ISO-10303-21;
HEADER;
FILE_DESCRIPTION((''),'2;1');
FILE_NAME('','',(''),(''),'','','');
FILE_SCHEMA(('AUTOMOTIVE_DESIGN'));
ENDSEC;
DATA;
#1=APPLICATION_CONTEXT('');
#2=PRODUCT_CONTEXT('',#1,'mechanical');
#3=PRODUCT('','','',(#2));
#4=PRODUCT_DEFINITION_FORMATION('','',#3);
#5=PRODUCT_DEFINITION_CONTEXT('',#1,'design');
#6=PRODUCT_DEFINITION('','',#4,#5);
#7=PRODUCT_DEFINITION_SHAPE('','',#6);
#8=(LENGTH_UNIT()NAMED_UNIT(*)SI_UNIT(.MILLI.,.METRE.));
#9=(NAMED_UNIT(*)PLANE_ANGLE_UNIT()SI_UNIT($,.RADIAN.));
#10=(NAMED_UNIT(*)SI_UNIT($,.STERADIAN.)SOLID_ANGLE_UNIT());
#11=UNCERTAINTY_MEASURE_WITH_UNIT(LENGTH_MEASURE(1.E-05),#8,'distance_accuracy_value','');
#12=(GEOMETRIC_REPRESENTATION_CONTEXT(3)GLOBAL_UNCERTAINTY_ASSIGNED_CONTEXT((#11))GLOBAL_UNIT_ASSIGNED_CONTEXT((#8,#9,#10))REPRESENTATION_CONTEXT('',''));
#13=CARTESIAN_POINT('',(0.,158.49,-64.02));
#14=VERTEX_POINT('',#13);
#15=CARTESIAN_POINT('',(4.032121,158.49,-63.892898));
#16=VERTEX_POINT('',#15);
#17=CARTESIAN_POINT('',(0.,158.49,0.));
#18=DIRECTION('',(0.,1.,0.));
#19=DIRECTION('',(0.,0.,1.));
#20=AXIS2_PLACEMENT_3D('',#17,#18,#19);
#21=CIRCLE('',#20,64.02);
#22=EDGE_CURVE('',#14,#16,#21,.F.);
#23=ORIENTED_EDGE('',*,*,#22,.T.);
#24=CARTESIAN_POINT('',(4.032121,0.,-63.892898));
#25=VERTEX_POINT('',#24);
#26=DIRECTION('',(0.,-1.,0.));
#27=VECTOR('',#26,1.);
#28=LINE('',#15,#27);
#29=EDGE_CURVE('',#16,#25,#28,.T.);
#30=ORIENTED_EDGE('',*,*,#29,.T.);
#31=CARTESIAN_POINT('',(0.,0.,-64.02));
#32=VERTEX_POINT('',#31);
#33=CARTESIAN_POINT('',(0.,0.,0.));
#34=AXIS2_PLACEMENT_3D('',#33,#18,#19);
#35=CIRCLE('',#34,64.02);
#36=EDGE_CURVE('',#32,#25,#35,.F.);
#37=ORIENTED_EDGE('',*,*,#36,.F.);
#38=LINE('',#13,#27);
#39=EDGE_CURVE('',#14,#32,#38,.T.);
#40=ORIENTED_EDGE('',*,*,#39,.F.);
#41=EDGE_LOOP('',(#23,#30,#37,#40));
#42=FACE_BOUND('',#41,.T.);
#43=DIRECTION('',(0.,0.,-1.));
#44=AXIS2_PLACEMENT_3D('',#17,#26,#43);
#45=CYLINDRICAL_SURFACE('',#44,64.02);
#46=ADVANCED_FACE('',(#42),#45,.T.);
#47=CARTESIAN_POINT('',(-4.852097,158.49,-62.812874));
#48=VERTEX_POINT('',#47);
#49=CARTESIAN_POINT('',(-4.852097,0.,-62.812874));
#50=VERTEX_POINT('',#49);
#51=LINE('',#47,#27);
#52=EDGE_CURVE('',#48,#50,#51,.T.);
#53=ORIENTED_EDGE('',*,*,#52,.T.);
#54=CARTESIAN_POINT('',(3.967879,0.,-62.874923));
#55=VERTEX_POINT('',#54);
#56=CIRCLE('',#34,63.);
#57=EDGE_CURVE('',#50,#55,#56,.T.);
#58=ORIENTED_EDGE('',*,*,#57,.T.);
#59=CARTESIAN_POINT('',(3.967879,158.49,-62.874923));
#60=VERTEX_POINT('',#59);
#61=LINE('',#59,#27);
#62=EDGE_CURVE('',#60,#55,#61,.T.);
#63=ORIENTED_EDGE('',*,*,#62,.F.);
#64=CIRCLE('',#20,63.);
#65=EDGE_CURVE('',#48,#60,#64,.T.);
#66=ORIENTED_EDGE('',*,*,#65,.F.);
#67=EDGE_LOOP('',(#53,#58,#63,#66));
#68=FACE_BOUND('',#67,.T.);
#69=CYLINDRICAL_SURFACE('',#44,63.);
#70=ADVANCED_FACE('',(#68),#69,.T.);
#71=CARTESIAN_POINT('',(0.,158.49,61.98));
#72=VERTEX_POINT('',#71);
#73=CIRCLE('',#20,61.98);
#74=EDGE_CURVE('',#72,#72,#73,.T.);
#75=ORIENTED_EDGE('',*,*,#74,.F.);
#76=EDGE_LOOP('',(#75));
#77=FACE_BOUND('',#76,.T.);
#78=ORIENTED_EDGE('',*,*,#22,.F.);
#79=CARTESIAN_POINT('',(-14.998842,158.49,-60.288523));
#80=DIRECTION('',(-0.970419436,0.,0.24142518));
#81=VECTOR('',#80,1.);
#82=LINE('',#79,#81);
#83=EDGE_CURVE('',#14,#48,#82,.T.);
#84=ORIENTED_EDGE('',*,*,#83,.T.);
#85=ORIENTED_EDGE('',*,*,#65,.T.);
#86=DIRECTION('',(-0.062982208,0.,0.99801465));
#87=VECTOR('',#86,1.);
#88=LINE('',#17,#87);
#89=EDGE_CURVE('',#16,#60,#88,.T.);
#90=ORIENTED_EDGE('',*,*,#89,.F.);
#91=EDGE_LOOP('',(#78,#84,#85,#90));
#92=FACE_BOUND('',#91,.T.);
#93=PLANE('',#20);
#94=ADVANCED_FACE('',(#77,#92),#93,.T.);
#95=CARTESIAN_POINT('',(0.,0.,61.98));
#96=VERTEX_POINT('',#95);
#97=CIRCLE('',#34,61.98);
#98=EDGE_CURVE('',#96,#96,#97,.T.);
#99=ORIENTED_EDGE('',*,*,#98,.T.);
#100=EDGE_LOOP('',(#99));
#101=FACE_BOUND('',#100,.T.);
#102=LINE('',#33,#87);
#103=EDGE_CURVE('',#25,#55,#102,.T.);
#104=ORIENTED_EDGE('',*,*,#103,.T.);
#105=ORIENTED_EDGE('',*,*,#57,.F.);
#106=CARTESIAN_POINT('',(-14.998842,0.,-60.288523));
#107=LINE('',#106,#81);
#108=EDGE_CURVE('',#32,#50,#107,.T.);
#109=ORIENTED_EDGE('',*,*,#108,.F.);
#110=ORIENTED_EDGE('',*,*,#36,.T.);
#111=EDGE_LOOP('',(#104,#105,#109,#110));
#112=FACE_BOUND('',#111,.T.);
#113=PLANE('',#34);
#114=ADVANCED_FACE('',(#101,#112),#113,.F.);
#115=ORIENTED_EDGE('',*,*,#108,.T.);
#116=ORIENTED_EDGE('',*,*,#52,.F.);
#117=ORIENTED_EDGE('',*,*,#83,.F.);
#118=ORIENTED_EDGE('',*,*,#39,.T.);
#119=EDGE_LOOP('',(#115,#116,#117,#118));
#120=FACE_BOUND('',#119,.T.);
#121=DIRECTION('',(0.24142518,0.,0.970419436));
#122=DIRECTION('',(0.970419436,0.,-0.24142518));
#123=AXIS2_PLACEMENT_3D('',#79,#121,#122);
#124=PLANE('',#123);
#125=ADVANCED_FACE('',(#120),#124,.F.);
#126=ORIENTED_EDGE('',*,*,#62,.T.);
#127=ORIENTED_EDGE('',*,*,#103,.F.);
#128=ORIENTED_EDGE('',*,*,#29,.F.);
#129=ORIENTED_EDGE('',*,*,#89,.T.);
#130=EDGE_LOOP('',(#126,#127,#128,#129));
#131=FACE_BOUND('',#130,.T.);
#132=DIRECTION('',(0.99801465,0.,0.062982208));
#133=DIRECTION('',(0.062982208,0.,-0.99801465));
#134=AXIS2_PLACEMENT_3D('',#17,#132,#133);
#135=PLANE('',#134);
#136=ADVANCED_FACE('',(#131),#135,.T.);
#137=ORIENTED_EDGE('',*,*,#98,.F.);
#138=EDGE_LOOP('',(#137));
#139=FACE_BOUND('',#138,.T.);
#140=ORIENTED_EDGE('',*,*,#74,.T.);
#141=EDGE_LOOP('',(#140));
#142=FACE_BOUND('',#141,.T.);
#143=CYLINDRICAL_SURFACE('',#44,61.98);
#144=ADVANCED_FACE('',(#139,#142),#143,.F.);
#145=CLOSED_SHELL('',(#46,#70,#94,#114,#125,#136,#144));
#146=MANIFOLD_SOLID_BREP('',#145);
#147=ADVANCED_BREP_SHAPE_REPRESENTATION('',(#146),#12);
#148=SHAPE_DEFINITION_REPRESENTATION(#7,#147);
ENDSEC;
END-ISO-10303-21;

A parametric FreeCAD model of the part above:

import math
import FreeCAD as App
import Part
import Sketcher

V = App.Vector
Q = App.Units.Quantity

doc = App.newDocument("Part")
body = doc.addObject("PartDesign::Body", "Body")

# Sketch on XZ plane
sketch1 = doc.addObject("Sketcher::SketchObject", "Sketch")
body.addObject(sketch1)
sketch1.AttachmentSupport = (doc.XZ_Plane, [""])
sketch1.MapMode = "FlatFace"
sketch1.addGeometry([
    Part.LineSegment(V(4, -62.9, 0), V(4, -63.9, 0)),  # 0
    Part.ArcOfCircle(Part.Circle(V(0, 0, 0), V(0, 0, 1), 64), math.radians(-90), math.radians(-86.39)),  # 1
    Part.LineSegment(V(0, -64, 0), V(-4.9, -62.8, 0)),  # 2
    Part.ArcOfCircle(Part.Circle(V(0, 0, 0), V(0, 0, 1), 63), math.radians(-86), math.radians(266)),  # 3
    Part.Circle(V(0, 0, 0), V(0, 0, 1), 62),  # 4
], False)
sketch1.addConstraint([
    Sketcher.Constraint("Coincident", 0, 2, 1, 2),
    Sketcher.Constraint("Coincident", 1, 1, 2, 1),
    Sketcher.Constraint("Coincident", 2, 2, 3, 2),
    Sketcher.Constraint("Coincident", 3, 1, 0, 1),
    Sketcher.Constraint("Coincident", 1, 3, -1, 1),
    Sketcher.Constraint("Coincident", 3, 3, -1, 1),
    Sketcher.Constraint("Coincident", 4, 3, -1, 1),
    Sketcher.Constraint("PointOnObject", 1, 1, -2),
    Sketcher.Constraint("Radius", 3, Q("63 mm")),
    Sketcher.Constraint("Diameter", 4, Q("123.96 mm")),
    Sketcher.Constraint("Radius", 1, Q("64.02 mm")),
    Sketcher.Constraint("Distance", 2, Q("5 mm")),
    Sketcher.Constraint("DistanceX", -1, 1, 0, 2, Q("4.032121 mm")),
    Sketcher.Constraint("DistanceX", -1, 1, 3, 1, Q("3.967879 mm")),
])
pad1 = doc.addObject("PartDesign::Pad", "Pad")
body.addObject(pad1)
pad1.Profile = sketch1
pad1.Length = 158.49
pad1.Reversed = True

doc.recompute()
